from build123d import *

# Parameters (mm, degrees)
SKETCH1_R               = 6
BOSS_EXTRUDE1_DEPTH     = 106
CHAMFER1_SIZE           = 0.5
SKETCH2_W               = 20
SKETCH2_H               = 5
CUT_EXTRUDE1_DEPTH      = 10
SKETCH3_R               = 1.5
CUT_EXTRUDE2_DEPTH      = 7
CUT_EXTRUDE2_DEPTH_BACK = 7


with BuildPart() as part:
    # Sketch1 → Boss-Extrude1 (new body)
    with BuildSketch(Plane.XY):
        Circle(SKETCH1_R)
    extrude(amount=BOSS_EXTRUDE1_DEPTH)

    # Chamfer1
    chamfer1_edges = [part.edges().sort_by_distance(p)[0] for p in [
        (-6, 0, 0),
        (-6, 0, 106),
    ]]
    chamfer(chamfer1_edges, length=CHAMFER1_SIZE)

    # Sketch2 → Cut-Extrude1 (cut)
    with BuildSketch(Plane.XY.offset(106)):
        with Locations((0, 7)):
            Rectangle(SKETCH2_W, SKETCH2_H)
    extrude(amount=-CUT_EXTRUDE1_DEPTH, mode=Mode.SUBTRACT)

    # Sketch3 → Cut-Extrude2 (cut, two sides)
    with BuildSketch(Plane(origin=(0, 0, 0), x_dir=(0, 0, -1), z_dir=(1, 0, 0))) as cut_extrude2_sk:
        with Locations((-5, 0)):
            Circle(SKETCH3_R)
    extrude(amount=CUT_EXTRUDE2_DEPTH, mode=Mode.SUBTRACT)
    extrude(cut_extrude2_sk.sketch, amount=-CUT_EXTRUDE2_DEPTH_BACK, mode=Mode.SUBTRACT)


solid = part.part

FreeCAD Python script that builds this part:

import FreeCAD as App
import Part
import Sketcher


def edges_at(feature, points):
    """Names of the edges that pass closest to the given points."""
    edges = feature.Shape.Edges
    near = lambda p: min(range(len(edges)), key=lambda i: edges[i].distToShape(Part.Vertex(*p))[0])
    return sorted({f"Edge{near(p) + 1}" for p in points})

doc = App.newDocument("Part")
body = doc.addObject("PartDesign::Body", "Body")

# Sketch on XY plane
sketch1 = body.newObject("Sketcher::SketchObject", "Sketch")
sketch1.AttachmentSupport = (doc.getObject("XY_Plane"), [""])
sketch1.MapMode = "FlatFace"
sketch1.addGeometry(Part.Circle(App.Vector(0, 0, 0), App.Vector(0, 0, 1), 6), False)
sketch1.addConstraint([
    Sketcher.Constraint("Coincident", 0, 3, -1, 1),
    Sketcher.Constraint("Diameter", 0, 12.0),
])
pad1 = body.newObject("PartDesign::Pad", "Pad")
pad1.Profile = sketch1
pad1.Length = 106
doc.recompute()

chamfer = body.newObject("PartDesign::Chamfer", "Chamfer")
chamfer.Base = (pad1, edges_at(pad1, [(-6, 0, 0), (-6, 0, 106)]))
chamfer.Size = 0.5

# Sketch on XY plane
sketch2 = body.newObject("Sketcher::SketchObject", "Sketch001")
sketch2.AttachmentSupport = (doc.getObject("XY_Plane"), [""])
sketch2.MapMode = "FlatFace"
sketch2.AttachmentOffset = App.Placement(App.Vector(0, 0, 106), App.Rotation())
sketch2.addGeometry([
    Part.LineSegment(App.Vector(-10, 10, 0), App.Vector(-10, 4, 0)),
    Part.LineSegment(App.Vector(-10, 4, 0), App.Vector(10, 4, 0)),
    Part.LineSegment(App.Vector(10, 4, 0), App.Vector(10, 10, 0)),
    Part.LineSegment(App.Vector(10, 10, 0), App.Vector(-10, 10, 0)),
], False)
sketch2.addConstraint([
    Sketcher.Constraint("Coincident", 0, 2, 1, 1),
    Sketcher.Constraint("Coincident", 1, 2, 2, 1),
    Sketcher.Constraint("Coincident", 2, 2, 3, 1),
    Sketcher.Constraint("Coincident", 3, 2, 0, 1),
    Sketcher.Constraint("Vertical", 0),
    Sketcher.Constraint("Horizontal", 1),
    Sketcher.Constraint("Vertical", 2),
    Sketcher.Constraint("Horizontal", 3),
    Sketcher.Constraint("DistanceX", 1, 1, 1, 2, 20.0),
    Sketcher.Constraint("DistanceY", 0, 2, 0, 1, 5.0),
    Sketcher.Constraint("DistanceX", 0, 2, -1, 1, 10.0),
    Sketcher.Constraint("DistanceY", -1, 1, 0, 2, 4.5),
])
pocket1 = body.newObject("PartDesign::Pocket", "Pocket")
pocket1.Profile = sketch2
pocket1.Length = 10

# Sketch on YZ plane
sketch3 = body.newObject("Sketcher::SketchObject", "Sketch002")
sketch3.AttachmentSupport = (doc.getObject("YZ_Plane"), [""])
sketch3.MapMode = "FlatFace"
sketch3.addGeometry(Part.Circle(App.Vector(0, 5, 0), App.Vector(0, 0, 1), 1.5), False)
sketch3.addConstraint([
    Sketcher.Constraint("PointOnObject", 0, 3, -2),
    Sketcher.Constraint("Diameter", 0, 3.0),
    Sketcher.Constraint("DistanceY", -1, 1, 0, 3, 5.0),
])
pocket2 = body.newObject("PartDesign::Pocket", "Pocket001")
pocket2.Profile = sketch3
pocket2.Type = "ThroughAll"
pocket2.Midplane = True

doc.recompute()
